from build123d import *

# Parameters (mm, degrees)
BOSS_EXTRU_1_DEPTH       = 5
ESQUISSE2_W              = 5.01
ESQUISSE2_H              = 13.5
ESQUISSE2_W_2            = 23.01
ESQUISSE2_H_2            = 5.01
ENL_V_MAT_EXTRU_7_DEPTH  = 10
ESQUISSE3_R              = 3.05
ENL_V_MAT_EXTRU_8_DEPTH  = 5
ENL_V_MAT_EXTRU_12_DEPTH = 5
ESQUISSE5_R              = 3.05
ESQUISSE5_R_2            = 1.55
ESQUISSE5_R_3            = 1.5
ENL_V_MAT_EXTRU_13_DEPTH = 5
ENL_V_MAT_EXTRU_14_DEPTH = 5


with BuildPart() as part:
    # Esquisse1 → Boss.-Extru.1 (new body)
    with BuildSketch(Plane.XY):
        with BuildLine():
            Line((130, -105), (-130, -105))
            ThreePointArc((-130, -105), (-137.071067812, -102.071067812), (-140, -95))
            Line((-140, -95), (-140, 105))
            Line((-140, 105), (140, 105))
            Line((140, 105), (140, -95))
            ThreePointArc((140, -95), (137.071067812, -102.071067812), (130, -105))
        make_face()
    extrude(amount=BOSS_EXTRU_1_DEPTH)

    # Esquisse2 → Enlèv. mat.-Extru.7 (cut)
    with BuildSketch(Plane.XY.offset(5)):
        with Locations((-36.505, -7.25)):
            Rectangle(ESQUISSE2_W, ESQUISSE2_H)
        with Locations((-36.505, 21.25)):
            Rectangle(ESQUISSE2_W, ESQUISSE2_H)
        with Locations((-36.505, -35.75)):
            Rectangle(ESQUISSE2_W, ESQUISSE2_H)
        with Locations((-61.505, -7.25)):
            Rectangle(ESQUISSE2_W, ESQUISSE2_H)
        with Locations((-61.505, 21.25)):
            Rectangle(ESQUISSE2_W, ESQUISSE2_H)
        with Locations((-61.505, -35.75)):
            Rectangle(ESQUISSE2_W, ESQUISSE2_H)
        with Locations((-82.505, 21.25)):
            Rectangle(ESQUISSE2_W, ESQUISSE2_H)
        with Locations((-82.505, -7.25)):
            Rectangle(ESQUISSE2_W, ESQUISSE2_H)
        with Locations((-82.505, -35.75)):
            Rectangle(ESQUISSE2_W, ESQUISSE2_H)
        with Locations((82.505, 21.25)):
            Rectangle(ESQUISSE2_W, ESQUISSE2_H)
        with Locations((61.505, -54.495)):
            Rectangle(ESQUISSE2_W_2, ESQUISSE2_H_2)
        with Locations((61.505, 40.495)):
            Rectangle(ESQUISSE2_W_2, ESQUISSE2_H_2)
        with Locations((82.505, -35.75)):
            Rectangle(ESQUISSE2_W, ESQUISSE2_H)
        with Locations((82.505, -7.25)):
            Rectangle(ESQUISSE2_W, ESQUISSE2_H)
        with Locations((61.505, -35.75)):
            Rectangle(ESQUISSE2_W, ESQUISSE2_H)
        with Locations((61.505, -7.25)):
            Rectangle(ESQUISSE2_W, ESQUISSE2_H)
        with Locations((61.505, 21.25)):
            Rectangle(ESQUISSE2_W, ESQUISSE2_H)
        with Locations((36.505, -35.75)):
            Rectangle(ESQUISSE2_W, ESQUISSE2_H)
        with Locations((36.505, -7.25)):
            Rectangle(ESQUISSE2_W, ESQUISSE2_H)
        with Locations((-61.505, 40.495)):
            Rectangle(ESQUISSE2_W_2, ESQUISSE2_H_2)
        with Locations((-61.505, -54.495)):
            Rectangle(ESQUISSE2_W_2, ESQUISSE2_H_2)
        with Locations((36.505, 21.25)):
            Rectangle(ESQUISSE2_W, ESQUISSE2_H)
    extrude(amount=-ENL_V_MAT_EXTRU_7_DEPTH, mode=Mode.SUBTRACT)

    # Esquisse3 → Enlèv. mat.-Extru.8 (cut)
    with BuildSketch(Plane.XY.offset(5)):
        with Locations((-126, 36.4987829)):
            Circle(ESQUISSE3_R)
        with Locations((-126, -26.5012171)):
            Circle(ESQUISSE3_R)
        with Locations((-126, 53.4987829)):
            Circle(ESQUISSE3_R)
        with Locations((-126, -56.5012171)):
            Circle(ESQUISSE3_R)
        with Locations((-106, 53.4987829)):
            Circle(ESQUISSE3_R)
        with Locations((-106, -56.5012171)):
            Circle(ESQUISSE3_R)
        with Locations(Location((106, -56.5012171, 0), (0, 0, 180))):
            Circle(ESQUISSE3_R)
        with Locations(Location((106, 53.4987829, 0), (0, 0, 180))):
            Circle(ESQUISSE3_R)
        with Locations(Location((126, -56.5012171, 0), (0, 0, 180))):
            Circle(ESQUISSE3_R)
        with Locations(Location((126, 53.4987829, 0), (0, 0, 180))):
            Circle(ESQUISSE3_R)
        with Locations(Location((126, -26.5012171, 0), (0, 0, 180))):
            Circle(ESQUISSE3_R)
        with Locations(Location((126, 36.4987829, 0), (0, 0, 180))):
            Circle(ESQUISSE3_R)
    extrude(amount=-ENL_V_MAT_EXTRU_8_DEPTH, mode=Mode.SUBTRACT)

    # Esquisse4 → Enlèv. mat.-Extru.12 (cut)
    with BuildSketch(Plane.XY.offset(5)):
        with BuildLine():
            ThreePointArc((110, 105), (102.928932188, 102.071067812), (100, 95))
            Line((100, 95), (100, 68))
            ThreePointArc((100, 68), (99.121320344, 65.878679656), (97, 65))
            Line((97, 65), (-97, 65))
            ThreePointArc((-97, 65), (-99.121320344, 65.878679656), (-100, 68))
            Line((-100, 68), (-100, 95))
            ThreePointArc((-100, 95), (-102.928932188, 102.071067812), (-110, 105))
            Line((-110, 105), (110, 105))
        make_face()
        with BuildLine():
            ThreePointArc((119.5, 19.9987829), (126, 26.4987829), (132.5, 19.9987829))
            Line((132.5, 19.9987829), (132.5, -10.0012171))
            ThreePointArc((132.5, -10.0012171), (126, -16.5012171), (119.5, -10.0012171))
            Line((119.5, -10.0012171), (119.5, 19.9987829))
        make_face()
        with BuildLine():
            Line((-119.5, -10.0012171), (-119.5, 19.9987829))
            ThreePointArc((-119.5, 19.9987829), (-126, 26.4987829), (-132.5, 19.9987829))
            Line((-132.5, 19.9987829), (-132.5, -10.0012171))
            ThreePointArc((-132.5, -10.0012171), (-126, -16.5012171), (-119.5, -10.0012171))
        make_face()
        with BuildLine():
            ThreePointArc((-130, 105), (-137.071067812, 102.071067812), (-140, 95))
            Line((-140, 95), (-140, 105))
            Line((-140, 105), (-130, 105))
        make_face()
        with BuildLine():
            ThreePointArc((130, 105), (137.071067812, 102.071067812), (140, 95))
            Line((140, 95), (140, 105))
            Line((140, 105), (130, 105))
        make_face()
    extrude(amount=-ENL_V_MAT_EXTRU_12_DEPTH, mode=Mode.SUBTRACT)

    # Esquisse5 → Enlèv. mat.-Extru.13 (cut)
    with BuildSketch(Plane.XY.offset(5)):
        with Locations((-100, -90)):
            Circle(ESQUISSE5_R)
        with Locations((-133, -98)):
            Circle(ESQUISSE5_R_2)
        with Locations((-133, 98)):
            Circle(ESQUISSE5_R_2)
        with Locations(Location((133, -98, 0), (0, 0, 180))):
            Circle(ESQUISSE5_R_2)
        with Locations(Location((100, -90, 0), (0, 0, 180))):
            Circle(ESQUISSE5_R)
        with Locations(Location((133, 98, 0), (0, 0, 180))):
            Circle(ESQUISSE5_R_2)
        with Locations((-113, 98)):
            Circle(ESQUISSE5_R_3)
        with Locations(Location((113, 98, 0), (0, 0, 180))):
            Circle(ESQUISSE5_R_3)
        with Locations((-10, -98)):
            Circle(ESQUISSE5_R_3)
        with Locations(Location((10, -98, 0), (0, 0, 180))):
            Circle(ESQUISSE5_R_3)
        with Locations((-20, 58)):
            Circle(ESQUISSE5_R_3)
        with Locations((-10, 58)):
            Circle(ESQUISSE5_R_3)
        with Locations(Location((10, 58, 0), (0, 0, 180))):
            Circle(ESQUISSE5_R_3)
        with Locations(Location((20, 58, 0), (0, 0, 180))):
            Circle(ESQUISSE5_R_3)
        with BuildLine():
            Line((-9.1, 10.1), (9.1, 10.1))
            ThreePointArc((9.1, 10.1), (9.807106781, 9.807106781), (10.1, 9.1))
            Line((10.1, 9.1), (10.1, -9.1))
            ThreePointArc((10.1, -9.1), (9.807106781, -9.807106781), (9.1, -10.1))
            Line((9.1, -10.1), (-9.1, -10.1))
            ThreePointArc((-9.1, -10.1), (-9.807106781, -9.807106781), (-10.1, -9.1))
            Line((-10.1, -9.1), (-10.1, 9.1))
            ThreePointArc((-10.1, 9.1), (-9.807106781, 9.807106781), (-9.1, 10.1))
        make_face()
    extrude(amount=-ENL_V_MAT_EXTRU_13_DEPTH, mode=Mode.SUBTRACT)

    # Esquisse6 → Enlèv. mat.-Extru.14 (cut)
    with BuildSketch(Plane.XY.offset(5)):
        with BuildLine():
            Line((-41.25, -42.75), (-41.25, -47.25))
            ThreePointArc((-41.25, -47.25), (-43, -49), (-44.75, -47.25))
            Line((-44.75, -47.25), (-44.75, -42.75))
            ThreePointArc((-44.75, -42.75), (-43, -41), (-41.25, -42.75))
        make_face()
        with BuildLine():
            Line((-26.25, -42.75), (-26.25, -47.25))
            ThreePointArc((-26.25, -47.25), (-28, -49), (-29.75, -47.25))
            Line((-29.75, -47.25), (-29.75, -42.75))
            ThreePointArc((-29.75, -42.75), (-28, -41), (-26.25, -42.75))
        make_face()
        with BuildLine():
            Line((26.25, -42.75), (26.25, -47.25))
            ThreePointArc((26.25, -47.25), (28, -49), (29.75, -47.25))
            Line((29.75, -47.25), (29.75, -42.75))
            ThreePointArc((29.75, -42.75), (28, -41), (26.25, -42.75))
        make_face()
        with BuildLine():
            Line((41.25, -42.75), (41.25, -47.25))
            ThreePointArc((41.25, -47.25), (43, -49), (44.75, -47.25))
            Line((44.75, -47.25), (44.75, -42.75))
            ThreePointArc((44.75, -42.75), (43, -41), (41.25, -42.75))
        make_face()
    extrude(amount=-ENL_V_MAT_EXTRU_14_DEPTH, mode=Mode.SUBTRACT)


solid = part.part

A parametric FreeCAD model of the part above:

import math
import FreeCAD as App
import Part
import Sketcher


def add_polygon(sketch, points):
    """Adds a closed chain of lines whose ends are joined by coincident constraints."""
    first, n = sketch.GeometryCount, len(points)
    for a, b in zip(points, points[1:] + points[:1]):
        sketch.addGeometry(Part.LineSegment(App.Vector(*a, 0), App.Vector(*b, 0)), False)
    for i in range(n):
        sketch.addConstraint(Sketcher.Constraint("Coincident", first + i, 2, first + (i + 1) % n, 1))

doc = App.newDocument("Part")
body = doc.addObject("PartDesign::Body", "Body")

sketch1 = doc.addObject("Sketcher::SketchObject", "Sketch")
body.addObject(sketch1)
sketch1.AttachmentSupport = (doc.XY_Plane, [""])
sketch1.MapMode = "FlatFace"
sketch1.addGeometry(Part.LineSegment(App.Vector(-130, -105, 0), App.Vector(130, -105, 0)), False)
sketch1.addGeometry(Part.ArcOfCircle(Part.Circle(App.Vector(130, -95, 0), App.Vector(0, 0, 1), 10), math.radians(-90), math.radians(0)), False)
sketch1.addGeometry(Part.LineSegment(App.Vector(140, -95, 0), App.Vector(140, 105, 0)), False)
sketch1.addGeometry(Part.LineSegment(App.Vector(140, 105, 0), App.Vector(-140, 105, 0)), False)
sketch1.addGeometry(Part.LineSegment(App.Vector(-140, 105, 0), App.Vector(-140, -95, 0)), False)
sketch1.addGeometry(Part.ArcOfCircle(Part.Circle(App.Vector(-130, -95, 0), App.Vector(0, 0, 1), 10), math.radians(180), math.radians(270)), False)
sketch1.addConstraint(Sketcher.Constraint("Tangent", 0, 2, 1, 1))
sketch1.addConstraint(Sketcher.Constraint("Tangent", 1, 2, 2, 1))
sketch1.addConstraint(Sketcher.Constraint("Coincident", 2, 2, 3, 1))
sketch1.addConstraint(Sketcher.Constraint("Coincident", 3, 2, 4, 1))
sketch1.addConstraint(Sketcher.Constraint("Tangent", 4, 2, 5, 1))
sketch1.addConstraint(Sketcher.Constraint("Tangent", 5, 2, 0, 1))
sketch1.addConstraint(Sketcher.Constraint("Horizontal", 0))
sketch1.addConstraint(Sketcher.Constraint("Vertical", 2))
sketch1.addConstraint(Sketcher.Constraint("Horizontal", 3))
sketch1.addConstraint(Sketcher.Constraint("Vertical", 4))
sketch1.addConstraint(Sketcher.Constraint("Equal", 1, 5))
sketch1.addConstraint(Sketcher.Constraint("Radius", 1, 10.0))
sketch1.addConstraint(Sketcher.Constraint("DistanceX", 0, 1, 0, 2, 260.0))
sketch1.addConstraint(Sketcher.Constraint("DistanceY", 2, 1, 2, 2, 200.0))
sketch1.addConstraint(Sketcher.Constraint("DistanceX", -1, 1, 1, 3, 130.0))
sketch1.addConstraint(Sketcher.Constraint("DistanceY", 1, 3, -1, 1, 95.0))
pad1 = doc.addObject("PartDesign::Pad", "Pad")
body.addObject(pad1)
pad1.Profile = sketch1
pad1.Length = 5

sketch2 = doc.addObject("Sketcher::SketchObject", "Sketch001")
body.addObject(sketch2)
sketch2.AttachmentSupport = (doc.XY_Plane, [""])
sketch2.MapMode = "FlatFace"
sketch2.AttachmentOffset = App.Placement(App.Vector(0, 0, 5), App.Rotation())
add_polygon(sketch2, [(-39, 0), (-39, -14), (-34, -14), (-34, 0)])
add_polygon(sketch2, [(-39, 28), (-39, 14), (-34, 14), (-34, 28)])
add_polygon(sketch2, [(-39, -29), (-39, -42), (-34, -42), (-34, -29)])
add_polygon(sketch2, [(-64, 0), (-64, -14), (-59, -14), (-59, 0)])
add_polygon(sketch2, [(-64, 28), (-64, 14), (-59, 14), (-59, 28)])
add_polygon(sketch2, [(-64, -29), (-64, -42), (-59, -42), (-59, -29)])
add_polygon(sketch2, [(-85, 28), (-85, 14), (-80, 14), (-80, 28)])
add_polygon(sketch2, [(-85, 0), (-85, -14), (-80, -14), (-80, 0)])
add_polygon(sketch2, [(-85, -29), (-85, -42), (-80, -42), (-80, -29)])
add_polygon(sketch2, [(80, 28), (80, 14), (85, 14), (85, 28)])
add_polygon(sketch2, [(50, -52), (50, -57), (73, -57), (73, -52)])
add_polygon(sketch2, [(50, 43), (50, 38), (73, 38), (73, 43)])
add_polygon(sketch2, [(80, -29), (80, -42), (85, -42), (85, -29)])
add_polygon(sketch2, [(80, 0), (80, -14), (85, -14), (85, 0)])
add_polygon(sketch2, [(59, -29), (59, -42), (64, -42), (64, -29)])
add_polygon(sketch2, [(59, 0), (59, -14), (64, -14), (64, 0)])
add_polygon(sketch2, [(59, 28), (59, 14), (64, 14), (64, 28)])
add_polygon(sketch2, [(34, -29), (34, -42), (39, -42), (39, -29)])
add_polygon(sketch2, [(34, 0), (34, -14), (39, -14), (39, 0)])
add_polygon(sketch2, [(-73, 43), (-73, 38), (-50, 38), (-50, 43)])
add_polygon(sketch2, [(-73, -52), (-73, -57), (-50, -57), (-50, -52)])
add_polygon(sketch2, [(34, 28), (34, 14), (39, 14), (39, 28)])
sketch2.addConstraint(Sketcher.Constraint("Vertical", 0))
sketch2.addConstraint(Sketcher.Constraint("Horizontal", 1))
sketch2.addConstraint(Sketcher.Constraint("Vertical", 2))
sketch2.addConstraint(Sketcher.Constraint("Horizontal", 3))
sketch2.addConstraint(Sketcher.Constraint("Vertical", 4))
sketch2.addConstraint(Sketcher.Constraint("Horizontal", 5))
sketch2.addConstraint(Sketcher.Constraint("Vertical", 6))
sketch2.addConstraint(Sketcher.Constraint("Horizontal", 7))
sketch2.addConstraint(Sketcher.Constraint("Vertical", 8))
sketch2.addConstraint(Sketcher.Constraint("Horizontal", 9))
sketch2.addConstraint(Sketcher.Constraint("Vertical", 10))
sketch2.addConstraint(Sketcher.Constraint("Horizontal", 11))
sketch2.addConstraint(Sketcher.Constraint("Vertical", 12))
sketch2.addConstraint(Sketcher.Constraint("Horizontal", 13))
sketch2.addConstraint(Sketcher.Constraint("Vertical", 14))
sketch2.addConstraint(Sketcher.Constraint("Horizontal", 15))
sketch2.addConstraint(Sketcher.Constraint("Vertical", 16))
sketch2.addConstraint(Sketcher.Constraint("Horizontal", 17))
sketch2.addConstraint(Sketcher.Constraint("Vertical", 18))
sketch2.addConstraint(Sketcher.Constraint("Horizontal", 19))
sketch2.addConstraint(Sketcher.Constraint("Vertical", 20))
sketch2.addConstraint(Sketcher.Constraint("Horizontal", 21))
sketch2.addConstraint(Sketcher.Constraint("Vertical", 22))
sketch2.addConstraint(Sketcher.Constraint("Horizontal", 23))
sketch2.addConstraint(Sketcher.Constraint("Vertical", 24))
sketch2.addConstraint(Sketcher.Constraint("Horizontal", 25))
sketch2.addConstraint(Sketcher.Constraint("Vertical", 26))
sketch2.addConstraint(Sketcher.Constraint("Horizontal", 27))
sketch2.addConstraint(Sketcher.Constraint("Vertical", 28))
sketch2.addConstraint(Sketcher.Constraint("Horizontal", 29))
sketch2.addConstraint(Sketcher.Constraint("Vertical", 30))
sketch2.addConstraint(Sketcher.Constraint("Horizontal", 31))
sketch2.addConstraint(Sketcher.Constraint("Vertical", 32))
sketch2.addConstraint(Sketcher.Constraint("Horizontal", 33))
sketch2.addConstraint(Sketcher.Constraint("Vertical", 34))
sketch2.addConstraint(Sketcher.Constraint("Horizontal", 35))
sketch2.addConstraint(Sketcher.Constraint("Vertical", 36))
sketch2.addConstraint(Sketcher.Constraint("Horizontal", 37))
sketch2.addConstraint(Sketcher.Constraint("Vertical", 38))
sketch2.addConstraint(Sketcher.Constraint("Horizontal", 39))
sketch2.addConstraint(Sketcher.Constraint("Vertical", 40))
sketch2.addConstraint(Sketcher.Constraint("Horizontal", 41))
sketch2.addConstraint(Sketcher.Constraint("Vertical", 42))
sketch2.addConstraint(Sketcher.Constraint("Horizontal", 43))
sketch2.addConstraint(Sketcher.Constraint("Vertical", 44))
sketch2.addConstraint(Sketcher.Constraint("Horizontal", 45))
sketch2.addConstraint(Sketcher.Constraint("Vertical", 46))
sketch2.addConstraint(Sketcher.Constraint("Horizontal", 47))
sketch2.addConstraint(Sketcher.Constraint("Vertical", 48))
sketch2.addConstraint(Sketcher.Constraint("Horizontal", 49))
sketch2.addConstraint(Sketcher.Constraint("Vertical", 50))
sketch2.addConstraint(Sketcher.Constraint("Horizontal", 51))
sketch2.addConstraint(Sketcher.Constraint("Vertical", 52))
sketch2.addConstraint(Sketcher.Constraint("Horizontal", 53))
sketch2.addConstraint(Sketcher.Constraint("Vertical", 54))
sketch2.addConstraint(Sketcher.Constraint("Horizontal", 55))
sketch2.addConstraint(Sketcher.Constraint("Vertical", 56))
sketch2.addConstraint(Sketcher.Constraint("Horizontal", 57))
sketch2.addConstraint(Sketcher.Constraint("Vertical", 58))
sketch2.addConstraint(Sketcher.Constraint("Horizontal", 59))
sketch2.addConstraint(Sketcher.Constraint("Vertical", 60))
sketch2.addConstraint(Sketcher.Constraint("Horizontal", 61))
sketch2.addConstraint(Sketcher.Constraint("Vertical", 62))
sketch2.addConstraint(Sketcher.Constraint("Horizontal", 63))
sketch2.addConstraint(Sketcher.Constraint("Vertical", 64))
sketch2.addConstraint(Sketcher.Constraint("Horizontal", 65))
sketch2.addConstraint(Sketcher.Constraint("Vertical", 66))
sketch2.addConstraint(Sketcher.Constraint("Horizontal", 67))
sketch2.addConstraint(Sketcher.Constraint("Vertical", 68))
sketch2.addConstraint(Sketcher.Constraint("Horizontal", 69))
sketch2.addConstraint(Sketcher.Constraint("Vertical", 70))
sketch2.addConstraint(Sketcher.Constraint("Horizontal", 71))
sketch2.addConstraint(Sketcher.Constraint("Vertical", 72))
sketch2.addConstraint(Sketcher.Constraint("Horizontal", 73))
sketch2.addConstraint(Sketcher.Constraint("Vertical", 74))
sketch2.addConstraint(Sketcher.Constraint("Horizontal", 75))
sketch2.addConstraint(Sketcher.Constraint("Vertical", 76))
sketch2.addConstraint(Sketcher.Constraint("Horizontal", 77))
sketch2.addConstraint(Sketcher.Constraint("Vertical", 78))
sketch2.addConstraint(Sketcher.Constraint("Horizontal", 79))
sketch2.addConstraint(Sketcher.Constraint("Vertical", 80))
sketch2.addConstraint(Sketcher.Constraint("Horizontal", 81))
sketch2.addConstraint(Sketcher.Constraint("Vertical", 82))
sketch2.addConstraint(Sketcher.Constraint("Horizontal", 83))
sketch2.addConstraint(Sketcher.Constraint("Vertical", 84))
sketch2.addConstraint(Sketcher.Constraint("Horizontal", 85))
sketch2.addConstraint(Sketcher.Constraint("Vertical", 86))
sketch2.addConstraint(Sketcher.Constraint("Horizontal", 87))
sketch2.addConstraint(Sketcher.Constraint("Symmetric", 25, 2, 36, 2, -2))
sketch2.addConstraint(Sketcher.Constraint("Symmetric", 27, 2, 38, 2, -2))
sketch2.addConstraint(Sketcher.Constraint("Symmetric", 33, 2, 48, 2, -2))
sketch2.addConstraint(Sketcher.Constraint("Symmetric", 35, 2, 50, 2, -2))
sketch2.addConstraint(Sketcher.Constraint("Symmetric", 29, 2, 52, 2, -2))
sketch2.addConstraint(Sketcher.Constraint("Symmetric", 31, 2, 54, 2, -2))
sketch2.addConstraint(Sketcher.Constraint("Symmetric", 21, 2, 56, 2, -2))
sketch2.addConstraint(Sketcher.Constraint("Symmetric", 23, 2, 58, 2, -2))
sketch2.addConstraint(Sketcher.Constraint("Symmetric", 13, 2, 60, 2, -2))
sketch2.addConstraint(Sketcher.Constraint("Symmetric", 15, 2, 62, 2, -2))
sketch2.addConstraint(Sketcher.Constraint("Symmetric", 17, 2, 64, 2, -2))
sketch2.addConstraint(Sketcher.Constraint("Symmetric", 19, 2, 66, 2, -2))
sketch2.addConstraint(Sketcher.Constraint("Symmetric", 9, 2, 68, 2, -2))
sketch2.addConstraint(Sketcher.Constraint("Symmetric", 11, 2, 70, 2, -2))
sketch2.addConstraint(Sketcher.Constraint("Symmetric", 1, 2, 72, 2, -2))
sketch2.addConstraint(Sketcher.Constraint("Symmetric", 3, 2, 74, 2, -2))
sketch2.addConstraint(Sketcher.Constraint("Symmetric", 45, 2, 76, 2, -2))
sketch2.addConstraint(Sketcher.Constraint("Symmetric", 47, 2, 78, 2, -2))
sketch2.addConstraint(Sketcher.Constraint("Symmetric", 41, 2, 80, 2, -2))
sketch2.addConstraint(Sketcher.Constraint("Symmetric", 43, 2, 82, 2, -2))
sketch2.addConstraint(Sketcher.Constraint("Symmetric", 5, 2, 84, 2, -2))
sketch2.addConstraint(Sketcher.Constraint("Symmetric", 7, 2, 86, 2, -2))
sketch2.addConstraint(Sketcher.Constraint("Horizontal", 1, 2, 12, 2))
sketch2.addConstraint(Sketcher.Constraint("Horizontal", 3, 2, 14, 2))
sketch2.addConstraint(Sketcher.Constraint("Horizontal", 5, 2, 16, 2))
sketch2.addConstraint(Sketcher.Constraint("Horizontal", 7, 2, 18, 2))
sketch2.addConstraint(Sketcher.Constraint("Horizontal", 9, 2, 20, 2))
sketch2.addConstraint(Sketcher.Constraint("Horizontal", 11, 2, 22, 2))
sketch2.addConstraint(Sketcher.Constraint("Horizontal", 17, 2, 24, 2))
sketch2.addConstraint(Sketcher.Constraint("Horizontal", 19, 2, 26, 2))
sketch2.addConstraint(Sketcher.Constraint("Horizontal", 13, 2, 28, 2))
sketch2.addConstraint(Sketcher.Constraint("Horizontal", 15, 2, 30, 2))
sketch2.addConstraint(Sketcher.Constraint("Horizontal", 21, 2, 32, 2))
sketch2.addConstraint(Sketcher.Constraint("Horizontal", 23, 2, 34, 2))
sketch2.addConstraint(Sketcher.Constraint("Vertical", 3, 2, 4, 2))
sketch2.addConstraint(Sketcher.Constraint("Vertical", 2, 2, 5, 2))
sketch2.addConstraint(Sketcher.Constraint("Vertical", 7, 2, 8, 2))
sketch2.addConstraint(Sketcher.Constraint("Vertical", 6, 2, 9, 2))
sketch2.addConstraint(Sketcher.Constraint("Vertical", 15, 2, 16, 2))
sketch2.addConstraint(Sketcher.Constraint("Vertical", 14, 2, 17, 2))
sketch2.addConstraint(Sketcher.Constraint("Vertical", 19, 2, 20, 2))
sketch2.addConstraint(Sketcher.Constraint("Vertical", 18, 2, 21, 2))
sketch2.addConstraint(Sketcher.Constraint("Vertical", 27, 2, 28, 2))
sketch2.addConstraint(Sketcher.Constraint("Vertical", 26, 2, 29, 2))
sketch2.addConstraint(Sketcher.Constraint("Vertical", 31, 2, 32, 2))
sketch2.addConstraint(Sketcher.Constraint("Vertical", 30, 2, 33, 2))
sketch2.addConstraint(Sketcher.Constraint("Vertical", 43, 2, 44, 2))
sketch2.addConstraint(Sketcher.Constraint("Vertical", 42, 2, 45, 2))
sketch2.addConstraint(Sketcher.Constraint("Equal", 11, 13))
sketch2.addConstraint(Sketcher.Constraint("Equal", 23, 25))
sketch2.addConstraint(Sketcher.Constraint("Equal", 2, 4))
sketch2.addConstraint(Sketcher.Constraint("Equal", 6, 8))
sketch2.addConstraint(Sketcher.Constraint("Equal", 87, 40))
sketch2.addConstraint(Sketcher.Constraint("Equal", 42, 44))
sketch2.addConstraint(Sketcher.Constraint("DistanceY", 0, 2, 0, 1, 13.5))
sketch2.addConstraint(Sketcher.Constraint("DistanceY", 0, 2, -1, 1, 14.0))
sketch2.addConstraint(Sketcher.Constraint("DistanceX", 1, 2, -1, 1, 34.0))
sketch2.addConstraint(Sketcher.Constraint("DistanceY", -1, 1, 6, 2, 28.0))
sketch2.addConstraint(Sketcher.Constraint("DistanceY", 10, 2, -1, 1, 29.0))
sketch2.addConstraint(Sketcher.Constraint("DistanceX", 13, 2, -1, 1, 59.0))
sketch2.addConstraint(Sketcher.Constraint("DistanceX", 25, 2, -1, 1, 80.0))
sketch2.addConstraint(Sketcher.Constraint("DistanceX", -1, 1, 40, 2, 50.0))
sketch2.addConstraint(Sketcher.Constraint("DistanceY", 40, 2, -1, 1, 57.0))
sketch2.addConstraint(Sketcher.Constraint("DistanceY", -1, 1, 46, 2, 43.0))
sketch2.addConstraint(Sketcher.Constraint("DistanceX", 1, 1, 1, 2, 5.01))
sketch2.addConstraint(Sketcher.Constraint("DistanceX", 41, 1, 41, 2, 23.01))
pocket1 = doc.addObject("PartDesign::Pocket", "Pocket")
body.addObject(pocket1)
pocket1.Profile = sketch2
pocket1.Length = 10

sketch3 = doc.addObject("Sketcher::SketchObject", "Sketch002")
body.addObject(sketch3)
sketch3.AttachmentSupport = (doc.XY_Plane, [""])
sketch3.MapMode = "FlatFace"
sketch3.AttachmentOffset = App.Placement(App.Vector(0, 0, 5), App.Rotation())
sketch3.addGeometry(Part.Circle(App.Vector(-126, 36.5, 0), App.Vector(0, 0, 1), 3), False)
sketch3.addGeometry(Part.Circle(App.Vector(-126, -26.5, 0), App.Vector(0, 0, 1), 3), False)
sketch3.addGeometry(Part.Circle(App.Vector(-126, 53.5, 0), App.Vector(0, 0, 1), 3), False)
sketch3.addGeometry(Part.Circle(App.Vector(-126, -56.5, 0), App.Vector(0, 0, 1), 3), False)
sketch3.addGeometry(Part.Circle(App.Vector(-106, 53.5, 0), App.Vector(0, 0, 1), 3), False)
sketch3.addGeometry(Part.Circle(App.Vector(-106, -56.5, 0), App.Vector(0, 0, 1), 3), False)
sketch3.addGeometry(Part.Circle(App.Vector(106, -56.5, 0), App.Vector(0, 0, 1), 3), False)
sketch3.addGeometry(Part.Circle(App.Vector(106, 53.5, 0), App.Vector(0, 0, 1), 3), False)
sketch3.addGeometry(Part.Circle(App.Vector(126, -56.5, 0), App.Vector(0, 0, 1), 3), False)
sketch3.addGeometry(Part.Circle(App.Vector(126, 53.5, 0), App.Vector(0, 0, 1), 3), False)
sketch3.addGeometry(Part.Circle(App.Vector(126, -26.5, 0), App.Vector(0, 0, 1), 3), False)
sketch3.addGeometry(Part.Circle(App.Vector(126, 36.5, 0), App.Vector(0, 0, 1), 3), False)
sketch3.addConstraint(Sketcher.Constraint("Equal", 0, 1))
sketch3.addConstraint(Sketcher.Constraint("Equal", 1, 2))
sketch3.addConstraint(Sketcher.Constraint("Equal", 2, 3))
sketch3.addConstraint(Sketcher.Constraint("Equal", 3, 4))
sketch3.addConstraint(Sketcher.Constraint("Equal", 4, 5))
sketch3.addConstraint(Sketcher.Constraint("Equal", 5, 6))
sketch3.addConstraint(Sketcher.Constraint("Equal", 6, 7))
sketch3.addConstraint(Sketcher.Constraint("Equal", 7, 8))
sketch3.addConstraint(Sketcher.Constraint("Equal", 8, 9))
sketch3.addConstraint(Sketcher.Constraint("Equal", 9, 10))
sketch3.addConstraint(Sketcher.Constraint("Equal", 10, 11))
sketch3.addConstraint(Sketcher.Constraint("Symmetric", 5, 3, 6, 3, -2))
sketch3.addConstraint(Sketcher.Constraint("Symmetric", 4, 3, 7, 3, -2))
sketch3.addConstraint(Sketcher.Constraint("Symmetric", 3, 3, 8, 3, -2))
sketch3.addConstraint(Sketcher.Constraint("Symmetric", 2, 3, 9, 3, -2))
sketch3.addConstraint(Sketcher.Constraint("Symmetric", 1, 3, 10, 3, -2))
sketch3.addConstraint(Sketcher.Constraint("Symmetric", 0, 3, 11, 3, -2))
sketch3.addConstraint(Sketcher.Constraint("Horizontal", 2, 3, 4, 3))
sketch3.addConstraint(Sketcher.Constraint("Horizontal", 3, 3, 5, 3))
sketch3.addConstraint(Sketcher.Constraint("Vertical", 0, 3, 1, 3))
sketch3.addConstraint(Sketcher.Constraint("Vertical", 1, 3, 2, 3))
sketch3.addConstraint(Sketcher.Constraint("Vertical", 2, 3, 3, 3))
sketch3.addConstraint(Sketcher.Constraint("Vertical", 4, 3, 5, 3))
sketch3.addConstraint(Sketcher.Constraint("Diameter", 0, 6.1))
sketch3.addConstraint(Sketcher.Constraint("DistanceX", 0, 3, -1, 1, 126.0))
sketch3.addConstraint(Sketcher.Constraint("DistanceX", 4, 3, -1, 1, 106.0))
sketch3.addConstraint(Sketcher.Constraint("DistanceY", 1, 3, 0, 3, 63.0))
sketch3.addConstraint(Sketcher.Constraint("DistanceY", 0, 3, 2, 3, 17.0))
sketch3.addConstraint(Sketcher.Constraint("DistanceY", 3, 3, 1, 3, 30.0))
sketch3.addConstraint(Sketcher.Constraint("DistanceY", -1, 1, 0, 3, 36.498783))
pocket2 = doc.addObject("PartDesign::Pocket", "Pocket001")
body.addObject(pocket2)
pocket2.Profile = sketch3
pocket2.Length = 5

sketch4 = doc.addObject("Sketcher::SketchObject", "Sketch003")
body.addObject(sketch4)
sketch4.AttachmentSupport = (doc.XY_Plane, [""])
sketch4.MapMode = "FlatFace"
sketch4.AttachmentOffset = App.Placement(App.Vector(0, 0, 5), App.Rotation())
sketch4.addGeometry(Part.ArcOfCircle(Part.Circle(App.Vector(110, 95, 0), App.Vector(0, 0, 1), 10), math.radians(90), math.radians(180)), False)
sketch4.addGeometry(Part.LineSegment(App.Vector(110, 105, 0), App.Vector(-110, 105, 0)), False)
sketch4.addGeometry(Part.ArcOfCircle(Part.Circle(App.Vector(-110, 95, 0), App.Vector(0, 0, 1), 10), math.radians(0), math.radians(90)), False)
sketch4.addGeometry(Part.LineSegment(App.Vector(-100, 95, 0), App.Vector(-100, 68, 0)), False)
sketch4.addGeometry(Part.ArcOfCircle(Part.Circle(App.Vector(-97, 68, 0), App.Vector(0, 0, 1), 3), math.radians(180), math.radians(270)), False)
sketch4.addGeometry(Part.LineSegment(App.Vector(-97, 65, 0), App.Vector(97, 65, 0)), False)
sketch4.addGeometry(Part.ArcOfCircle(Part.Circle(App.Vector(97, 68, 0), App.Vector(0, 0, 1), 3), math.radians(-90), math.radians(0)), False)
sketch4.addGeometry(Part.LineSegment(App.Vector(100, 68, 0), App.Vector(100, 95, 0)), False)
sketch4.addGeometry(Part.ArcOfCircle(Part.Circle(App.Vector(126, 20, 0), App.Vector(0, 0, 1), 6.5), math.radians(0), math.radians(180)), False)
sketch4.addGeometry(Part.LineSegment(App.Vector(119.5, 20, 0), App.Vector(119.5, -10, 0)), False)
sketch4.addGeometry(Part.ArcOfCircle(Part.Circle(App.Vector(126, -10, 0), App.Vector(0, 0, 1), 6.5), math.radians(180), math.radians(360)), False)
sketch4.addGeometry(Part.LineSegment(App.Vector(132.5, -10, 0), App.Vector(132.5, 20, 0)), False)
sketch4.addGeometry(Part.LineSegment(App.Vector(-119.5, -10, 0), App.Vector(-119.5, 20, 0)), False)
sketch4.addGeometry(Part.ArcOfCircle(Part.Circle(App.Vector(-126, 20, 0), App.Vector(0, 0, 1), 6.5), math.radians(0), math.radians(180)), False)
sketch4.addGeometry(Part.LineSegment(App.Vector(-132.5, 20, 0), App.Vector(-132.5, -10, 0)), False)
sketch4.addGeometry(Part.ArcOfCircle(Part.Circle(App.Vector(-126, -10, 0), App.Vector(0, 0, 1), 6.5), math.radians(180), math.radians(360)), False)
sketch4.addGeometry(Part.ArcOfCircle(Part.Circle(App.Vector(-130, 95, 0), App.Vector(0, 0, 1), 10), math.radians(90), math.radians(180)), False)
sketch4.addGeometry(Part.LineSegment(App.Vector(-130, 105, 0), App.Vector(-140, 105, 0)), False)
sketch4.addGeometry(Part.LineSegment(App.Vector(-140, 105, 0), App.Vector(-140, 95, 0)), False)
sketch4.addGeometry(Part.ArcOfCircle(Part.Circle(App.Vector(130, 95, 0), App.Vector(0, 0, 1), 10), math.radians(0), math.radians(90)), False)
sketch4.addGeometry(Part.LineSegment(App.Vector(140, 95, 0), App.Vector(140, 105, 0)), False)
sketch4.addGeometry(Part.LineSegment(App.Vector(140, 105, 0), App.Vector(130, 105, 0)), False)
sketch4.addConstraint(Sketcher.Constraint("Tangent", 0, 1, 1, 1))
sketch4.addConstraint(Sketcher.Constraint("Tangent", 1, 2, 2, 2))
sketch4.addConstraint(Sketcher.Constraint("Tangent", 2, 1, 3, 1))
sketch4.addConstraint(Sketcher.Constraint("Tangent", 3, 2, 4, 1))
sketch4.addConstraint(Sketcher.Constraint("Tangent", 4, 2, 5, 1))
sketch4.addConstraint(Sketcher.Constraint("Tangent", 5, 2, 6, 1))
sketch4.addConstraint(Sketcher.Constraint("Tangent", 6, 2, 7, 1))
sketch4.addConstraint(Sketcher.Constraint("Tangent", 7, 2, 0, 2))
sketch4.addConstraint(Sketcher.Constraint("Tangent", 8, 2, 9, 1))
sketch4.addConstraint(Sketcher.Constraint("Tangent", 9, 2, 10, 1))
sketch4.addConstraint(Sketcher.Constraint("Tangent", 10, 2, 11, 1))
sketch4.addConstraint(Sketcher.Constraint("Tangent", 11, 2, 8, 1))
sketch4.addConstraint(Sketcher.Constraint("Tangent", 12, 2, 13, 1))
sketch4.addConstraint(Sketcher.Constraint("Tangent", 13, 2, 14, 1))
sketch4.addConstraint(Sketcher.Constraint("Tangent", 14, 2, 15, 1))
sketch4.addConstraint(Sketcher.Constraint("Tangent", 15, 2, 12, 1))
sketch4.addConstraint(Sketcher.Constraint("Tangent", 16, 1, 17, 1))
sketch4.addConstraint(Sketcher.Constraint("Coincident", 17, 2, 18, 1))
sketch4.addConstraint(Sketcher.Constraint("Tangent", 18, 2, 16, 2))
sketch4.addConstraint(Sketcher.Constraint("Tangent", 19, 1, 20, 1))
sketch4.addConstraint(Sketcher.Constraint("Coincident", 20, 2, 21, 1))
sketch4.addConstraint(Sketcher.Constraint("Tangent", 21, 2, 19, 2))
sketch4.addConstraint(Sketcher.Constraint("Horizontal", 1))
sketch4.addConstraint(Sketcher.Constraint("Vertical", 3))
sketch4.addConstraint(Sketcher.Constraint("Horizontal", 5))
sketch4.addConstraint(Sketcher.Constraint("Vertical", 7))
sketch4.addConstraint(Sketcher.Constraint("Vertical", 9))
sketch4.addConstraint(Sketcher.Constraint("Vertical", 11))
sketch4.addConstraint(Sketcher.Constraint("Vertical", 12))
sketch4.addConstraint(Sketcher.Constraint("Vertical", 14))
sketch4.addConstraint(Sketcher.Constraint("Horizontal", 17))
sketch4.addConstraint(Sketcher.Constraint("Vertical", 18))
sketch4.addConstraint(Sketcher.Constraint("Vertical", 20))
sketch4.addConstraint(Sketcher.Constraint("Horizontal", 21))
sketch4.addConstraint(Sketcher.Constraint("Equal", 0, 2))
sketch4.addConstraint(Sketcher.Constraint("Equal", 4, 6))
sketch4.addConstraint(Sketcher.Constraint("Equal", 10, 13))
sketch4.addConstraint(Sketcher.Constraint("Equal", 2, 16))
sketch4.addConstraint(Sketcher.Constraint("Equal", 16, 19))
sketch4.addConstraint(Sketcher.Constraint("Symmetric", 8, 3, 13, 3, -2))
sketch4.addConstraint(Sketcher.Constraint("Symmetric", 16, 3, 19, 3, -2))
sketch4.addConstraint(Sketcher.Constraint("Horizontal", 10, 3, 15, 3))
sketch4.addConstraint(Sketcher.Constraint("Horizontal", 2, 3, 16, 3))
sketch4.addConstraint(Sketcher.Constraint("Radius", 0, 10.0))
sketch4.addConstraint(Sketcher.Constraint("Radius", 4, 3.0))
sketch4.addConstraint(Sketcher.Constraint("Radius", 8, 6.5))
sketch4.addConstraint(Sketcher.Constraint("DistanceX", 1, 2, 1, 1, 220.0))
sketch4.addConstraint(Sketcher.Constraint("DistanceY", 3, 2, 3, 1, 27.0))
sketch4.addConstraint(Sketcher.Constraint("DistanceY", 9, 2, 9, 1, 30.0))
sketch4.addConstraint(Sketcher.Constraint("DistanceX", -1, 1, 0, 3, 110.0))
sketch4.addConstraint(Sketcher.Constraint("DistanceY", -1, 1, 0, 3, 95.0))
sketch4.addConstraint(Sketcher.Constraint("DistanceX", -1, 1, 8, 3, 126.0))
sketch4.addConstraint(Sketcher.Constraint("DistanceX", 16, 3, -1, 1, 130.0))
sketch4.addConstraint(Sketcher.Constraint("DistanceY", -1, 1, 8, 3, 19.998783))
pocket3 = doc.addObject("PartDesign::Pocket", "Pocket002")
body.addObject(pocket3)
pocket3.Profile = sketch4
pocket3.Length = 5

sketch5 = doc.addObject("Sketcher::SketchObject", "Sketch004")
body.addObject(sketch5)
sketch5.AttachmentSupport = (doc.XY_Plane, [""])
sketch5.MapMode = "FlatFace"
sketch5.AttachmentOffset = App.Placement(App.Vector(0, 0, 5), App.Rotation())
sketch5.addGeometry(Part.Circle(App.Vector(-100, -90, 0), App.Vector(0, 0, 1), 3), False)
sketch5.addGeometry(Part.Circle(App.Vector(-133, -98, 0), App.Vector(0, 0, 1), 1.6), False)
sketch5.addGeometry(Part.Circle(App.Vector(-133, 98, 0), App.Vector(0, 0, 1), 1.6), False)
sketch5.addGeometry(Part.Circle(App.Vector(133, -98, 0), App.Vector(0, 0, 1), 1.6), False)
sketch5.addGeometry(Part.Circle(App.Vector(100, -90, 0), App.Vector(0, 0, 1), 3), False)
sketch5.addGeometry(Part.Circle(App.Vector(133, 98, 0), App.Vector(0, 0, 1), 1.6), False)
sketch5.addGeometry(Part.Circle(App.Vector(-113, 98, 0), App.Vector(0, 0, 1), 1.5), False)
sketch5.addGeometry(Part.Circle(App.Vector(113, 98, 0), App.Vector(0, 0, 1), 1.5), False)
sketch5.addGeometry(Part.Circle(App.Vector(-10, -98, 0), App.Vector(0, 0, 1), 1.5), False)
sketch5.addGeometry(Part.Circle(App.Vector(10, -98, 0), App.Vector(0, 0, 1), 1.5), False)
sketch5.addGeometry(Part.Circle(App.Vector(-20, 58, 0), App.Vector(0, 0, 1), 1.5), False)
sketch5.addGeometry(Part.Circle(App.Vector(-10, 58, 0), App.Vector(0, 0, 1), 1.5), False)
sketch5.addGeometry(Part.Circle(App.Vector(10, 58, 0), App.Vector(0, 0, 1), 1.5), False)
sketch5.addGeometry(Part.Circle(App.Vector(20, 58, 0), App.Vector(0, 0, 1), 1.5), False)
sketch5.addGeometry(Part.LineSegment(App.Vector(9.1, 10.1, 0), App.Vector(-9.1, 10.1, 0)), False)
sketch5.addGeometry(Part.ArcOfCircle(Part.Circle(App.Vector(-9.1, 9.1, 0), App.Vector(0, 0, 1), 1), math.radians(90), math.radians(180)), False)
sketch5.addGeometry(Part.LineSegment(App.Vector(-10.1, 9.1, 0), App.Vector(-10.1, -9.1, 0)), False)
sketch5.addGeometry(Part.ArcOfCircle(Part.Circle(App.Vector(-9.1, -9.1, 0), App.Vector(0, 0, 1), 1), math.radians(-180), math.radians(-90)), False)
sketch5.addGeometry(Part.LineSegment(App.Vector(-9.1, -10.1, 0), App.Vector(9.1, -10.1, 0)), False)
sketch5.addGeometry(Part.ArcOfCircle(Part.Circle(App.Vector(9.1, -9.1, 0), App.Vector(0, 0, 1), 1), math.radians(-90), math.radians(0)), False)
sketch5.addGeometry(Part.LineSegment(App.Vector(10.1, -9.1, 0), App.Vector(10.1, 9.1, 0)), False)
sketch5.addGeometry(Part.ArcOfCircle(Part.Circle(App.Vector(9.1, 9.1, 0), App.Vector(0, 0, 1), 1), math.radians(0), math.radians(90)), False)
sketch5.addConstraint(Sketcher.Constraint("Tangent", 14, 2, 15, 1))
sketch5.addConstraint(Sketcher.Constraint("Tangent", 15, 2, 16, 1))
sketch5.addConstraint(Sketcher.Constraint("Tangent", 16, 2, 17, 1))
sketch5.addConstraint(Sketcher.Constraint("Tangent", 17, 2, 18, 1))
sketch5.addConstraint(Sketcher.Constraint("Tangent", 18, 2, 19, 1))
sketch5.addConstraint(Sketcher.Constraint("Tangent", 19, 2, 20, 1))
sketch5.addConstraint(Sketcher.Constraint("Tangent", 20, 2, 21, 1))
sketch5.addConstraint(Sketcher.Constraint("Tangent", 21, 2, 14, 1))
sketch5.addConstraint(Sketcher.Constraint("Horizontal", 14))
sketch5.addConstraint(Sketcher.Constraint("Vertical", 16))
sketch5.addConstraint(Sketcher.Constraint("Horizontal", 18))
sketch5.addConstraint(Sketcher.Constraint("Vertical", 20))
sketch5.addConstraint(Sketcher.Constraint("Equal", 1, 2))
sketch5.addConstraint(Sketcher.Constraint("Equal", 2, 3))
sketch5.addConstraint(Sketcher.Constraint("Equal", 0, 4))
sketch5.addConstraint(Sketcher.Constraint("Equal", 3, 5))
sketch5.addConstraint(Sketcher.Constraint("Equal", 6, 7))
sketch5.addConstraint(Sketcher.Constraint("Equal", 7, 8))
sketch5.addConstraint(Sketcher.Constraint("Equal", 8, 9))
sketch5.addConstraint(Sketcher.Constraint("Equal", 9, 10))
sketch5.addConstraint(Sketcher.Constraint("Equal", 10, 11))
sketch5.addConstraint(Sketcher.Constraint("Equal", 11, 12))
sketch5.addConstraint(Sketcher.Constraint("Equal", 12, 13))
sketch5.addConstraint(Sketcher.Constraint("Equal", 15, 17))
sketch5.addConstraint(Sketcher.Constraint("Equal", 17, 19))
sketch5.addConstraint(Sketcher.Constraint("Equal", 19, 21))
sketch5.addConstraint(Sketcher.Constraint("Symmetric", 2, 3, 3, 3, -1, 1))
sketch5.addConstraint(Sketcher.Constraint("Symmetric", 1, 3, 5, 3, -1, 1))
sketch5.addConstraint(Sketcher.Constraint("Symmetric", 15, 3, 19, 3, -1, 1))
sketch5.addConstraint(Sketcher.Constraint("Symmetric", 1, 3, 3, 3, -2))
sketch5.addConstraint(Sketcher.Constraint("Symmetric", 0, 3, 4, 3, -2))
sketch5.addConstraint(Sketcher.Constraint("Symmetric", 6, 3, 7, 3, -2))
sketch5.addConstraint(Sketcher.Constraint("Symmetric", 8, 3, 9, 3, -2))
sketch5.addConstraint(Sketcher.Constraint("Symmetric", 11, 3, 12, 3, -2))
sketch5.addConstraint(Sketcher.Constraint("Symmetric", 10, 3, 13, 3, -2))
sketch5.addConstraint(Sketcher.Constraint("Horizontal", 5, 3, 6, 3))
sketch5.addConstraint(Sketcher.Constraint("Horizontal", 3, 3, 8, 3))
sketch5.addConstraint(Sketcher.Constraint("Horizontal", 10, 3, 11, 3))
sketch5.addConstraint(Sketcher.Constraint("Vertical", 8, 3, 11, 3))
sketch5.addConstraint(Sketcher.Constraint("Equal", 18, 16))
sketch5.addConstraint(Sketcher.Constraint("Diameter", 6, 3.0))
sketch5.addConstraint(Sketcher.Constraint("Radius", 15, 1.0))
sketch5.addConstraint(Sketcher.Constraint("Diameter", 0, 6.1))
sketch5.addConstraint(Sketcher.Constraint("Diameter", 1, 3.1))
sketch5.addConstraint(Sketcher.Constraint("DistanceX", 14, 2, 14, 1, 18.2))
sketch5.addConstraint(Sketcher.Constraint("DistanceX", 0, 3, -1, 1, 100.0))
sketch5.addConstraint(Sketcher.Constraint("DistanceY", 0, 3, -1, 1, 90.0))
sketch5.addConstraint(Sketcher.Constraint("DistanceX", 1, 3, -1, 1, 133.0))
sketch5.addConstraint(Sketcher.Constraint("DistanceY", 1, 3, -1, 1, 98.0))
sketch5.addConstraint(Sketcher.Constraint("DistanceX", 6, 3, -1, 1, 113.0))
sketch5.addConstraint(Sketcher.Constraint("DistanceX", 8, 3, -1, 1, 10.0))
sketch5.addConstraint(Sketcher.Constraint("DistanceX", 10, 3, -1, 1, 20.0))
sketch5.addConstraint(Sketcher.Constraint("DistanceY", -1, 1, 10, 3, 58.0))
pocket4 = doc.addObject("PartDesign::Pocket", "Pocket003")
body.addObject(pocket4)
pocket4.Profile = sketch5
pocket4.Length = 5

sketch6 = doc.addObject("Sketcher::SketchObject", "Sketch005")
body.addObject(sketch6)
sketch6.AttachmentSupport = (doc.XY_Plane, [""])
sketch6.MapMode = "FlatFace"
sketch6.AttachmentOffset = App.Placement(App.Vector(0, 0, 5), App.Rotation())
sketch6.addGeometry(Part.LineSegment(App.Vector(-41.2, -47.2, 0), App.Vector(-41.2, -42.8, 0)), False)
sketch6.addGeometry(Part.ArcOfCircle(Part.Circle(App.Vector(-43, -42.8, 0), App.Vector(0, 0, 1), 1.8), math.radians(0), math.radians(180)), False)
sketch6.addGeometry(Part.LineSegment(App.Vector(-44.8, -42.8, 0), App.Vector(-44.8, -47.2, 0)), False)
sketch6.addGeometry(Part.ArcOfCircle(Part.Circle(App.Vector(-43, -47.2, 0), App.Vector(0, 0, 1), 1.8), math.radians(180), math.radians(360)), False)
sketch6.addGeometry(Part.LineSegment(App.Vector(-26.2, -47.2, 0), App.Vector(-26.2, -42.8, 0)), False)
sketch6.addGeometry(Part.ArcOfCircle(Part.Circle(App.Vector(-28, -42.8, 0), App.Vector(0, 0, 1), 1.8), math.radians(0), math.radians(180)), False)
sketch6.addGeometry(Part.LineSegment(App.Vector(-29.8, -42.8, 0), App.Vector(-29.8, -47.2, 0)), False)
sketch6.addGeometry(Part.ArcOfCircle(Part.Circle(App.Vector(-28, -47.2, 0), App.Vector(0, 0, 1), 1.8), math.radians(180), math.radians(360)), False)
sketch6.addGeometry(Part.LineSegment(App.Vector(26.2, -42.8, 0), App.Vector(26.2, -47.2, 0)), False)
sketch6.addGeometry(Part.ArcOfCircle(Part.Circle(App.Vector(28, -47.2, 0), App.Vector(0, 0, 1), 1.8), math.radians(180), math.radians(360)), False)
sketch6.addGeometry(Part.LineSegment(App.Vector(29.8, -47.2, 0), App.Vector(29.8, -42.8, 0)), False)
sketch6.addGeometry(Part.ArcOfCircle(Part.Circle(App.Vector(28, -42.8, 0), App.Vector(0, 0, 1), 1.8), math.radians(0), math.radians(180)), False)
sketch6.addGeometry(Part.LineSegment(App.Vector(41.2, -42.8, 0), App.Vector(41.2, -47.2, 0)), False)
sketch6.addGeometry(Part.ArcOfCircle(Part.Circle(App.Vector(43, -47.2, 0), App.Vector(0, 0, 1), 1.8), math.radians(180), math.radians(360)), False)
sketch6.addGeometry(Part.LineSegment(App.Vector(44.8, -47.2, 0), App.Vector(44.8, -42.8, 0)), False)
sketch6.addGeometry(Part.ArcOfCircle(Part.Circle(App.Vector(43, -42.8, 0), App.Vector(0, 0, 1), 1.8), math.radians(0), math.radians(180)), False)
sketch6.addConstraint(Sketcher.Constraint("Tangent", 0, 2, 1, 1))
sketch6.addConstraint(Sketcher.Constraint("Tangent", 1, 2, 2, 1))
sketch6.addConstraint(Sketcher.Constraint("Tangent", 2, 2, 3, 1))
sketch6.addConstraint(Sketcher.Constraint("Tangent", 3, 2, 0, 1))
sketch6.addConstraint(Sketcher.Constraint("Tangent", 4, 2, 5, 1))
sketch6.addConstraint(Sketcher.Constraint("Tangent", 5, 2, 6, 1))
sketch6.addConstraint(Sketcher.Constraint("Tangent", 6, 2, 7, 1))
sketch6.addConstraint(Sketcher.Constraint("Tangent", 7, 2, 4, 1))
sketch6.addConstraint(Sketcher.Constraint("Tangent", 8, 2, 9, 1))
sketch6.addConstraint(Sketcher.Constraint("Tangent", 9, 2, 10, 1))
sketch6.addConstraint(Sketcher.Constraint("Tangent", 10, 2, 11, 1))
sketch6.addConstraint(Sketcher.Constraint("Tangent", 11, 2, 8, 1))
sketch6.addConstraint(Sketcher.Constraint("Tangent", 12, 2, 13, 1))
sketch6.addConstraint(Sketcher.Constraint("Tangent", 13, 2, 14, 1))
sketch6.addConstraint(Sketcher.Constraint("Tangent", 14, 2, 15, 1))
sketch6.addConstraint(Sketcher.Constraint("Tangent", 15, 2, 12, 1))
sketch6.addConstraint(Sketcher.Constraint("Vertical", 0))
sketch6.addConstraint(Sketcher.Constraint("Vertical", 2))
sketch6.addConstraint(Sketcher.Constraint("Vertical", 4))
sketch6.addConstraint(Sketcher.Constraint("Vertical", 6))
sketch6.addConstraint(Sketcher.Constraint("Vertical", 8))
sketch6.addConstraint(Sketcher.Constraint("Vertical", 10))
sketch6.addConstraint(Sketcher.Constraint("Vertical", 12))
sketch6.addConstraint(Sketcher.Constraint("Vertical", 14))
sketch6.addConstraint(Sketcher.Constraint("Equal", 3, 5))
sketch6.addConstraint(Sketcher.Constraint("Equal", 7, 9))
sketch6.addConstraint(Sketcher.Constraint("Equal", 11, 13))
sketch6.addConstraint(Sketcher.Constraint("Symmetric", 7, 3, 9, 3, -2))
sketch6.addConstraint(Sketcher.Constraint("Symmetric", 3, 3, 13, 3, -2))
sketch6.addConstraint(Sketcher.Constraint("Horizontal", 1, 3, 5, 3))
sketch6.addConstraint(Sketcher.Constraint("Horizontal", 3, 3, 7, 3))
sketch6.addConstraint(Sketcher.Constraint("Horizontal", 5, 3, 11, 3))
sketch6.addConstraint(Sketcher.Constraint("Horizontal", 11, 3, 15, 3))
sketch6.addConstraint(Sketcher.Constraint("Radius", 1, 1.75))
sketch6.addConstraint(Sketcher.Constraint("DistanceY", 0, 1, 0, 2, 4.5))
sketch6.addConstraint(Sketcher.Constraint("DistanceX", 1, 3, -1, 1, 43.0))
sketch6.addConstraint(Sketcher.Constraint("DistanceX", 5, 3, -1, 1, 28.0))
sketch6.addConstraint(Sketcher.Constraint("DistanceY", 1, 3, -1, 1, 42.75))
pocket5 = doc.addObject("PartDesign::Pocket", "Pocket004")
body.addObject(pocket5)
pocket5.Profile = sketch6
pocket5.Length = 5

doc.recompute()
